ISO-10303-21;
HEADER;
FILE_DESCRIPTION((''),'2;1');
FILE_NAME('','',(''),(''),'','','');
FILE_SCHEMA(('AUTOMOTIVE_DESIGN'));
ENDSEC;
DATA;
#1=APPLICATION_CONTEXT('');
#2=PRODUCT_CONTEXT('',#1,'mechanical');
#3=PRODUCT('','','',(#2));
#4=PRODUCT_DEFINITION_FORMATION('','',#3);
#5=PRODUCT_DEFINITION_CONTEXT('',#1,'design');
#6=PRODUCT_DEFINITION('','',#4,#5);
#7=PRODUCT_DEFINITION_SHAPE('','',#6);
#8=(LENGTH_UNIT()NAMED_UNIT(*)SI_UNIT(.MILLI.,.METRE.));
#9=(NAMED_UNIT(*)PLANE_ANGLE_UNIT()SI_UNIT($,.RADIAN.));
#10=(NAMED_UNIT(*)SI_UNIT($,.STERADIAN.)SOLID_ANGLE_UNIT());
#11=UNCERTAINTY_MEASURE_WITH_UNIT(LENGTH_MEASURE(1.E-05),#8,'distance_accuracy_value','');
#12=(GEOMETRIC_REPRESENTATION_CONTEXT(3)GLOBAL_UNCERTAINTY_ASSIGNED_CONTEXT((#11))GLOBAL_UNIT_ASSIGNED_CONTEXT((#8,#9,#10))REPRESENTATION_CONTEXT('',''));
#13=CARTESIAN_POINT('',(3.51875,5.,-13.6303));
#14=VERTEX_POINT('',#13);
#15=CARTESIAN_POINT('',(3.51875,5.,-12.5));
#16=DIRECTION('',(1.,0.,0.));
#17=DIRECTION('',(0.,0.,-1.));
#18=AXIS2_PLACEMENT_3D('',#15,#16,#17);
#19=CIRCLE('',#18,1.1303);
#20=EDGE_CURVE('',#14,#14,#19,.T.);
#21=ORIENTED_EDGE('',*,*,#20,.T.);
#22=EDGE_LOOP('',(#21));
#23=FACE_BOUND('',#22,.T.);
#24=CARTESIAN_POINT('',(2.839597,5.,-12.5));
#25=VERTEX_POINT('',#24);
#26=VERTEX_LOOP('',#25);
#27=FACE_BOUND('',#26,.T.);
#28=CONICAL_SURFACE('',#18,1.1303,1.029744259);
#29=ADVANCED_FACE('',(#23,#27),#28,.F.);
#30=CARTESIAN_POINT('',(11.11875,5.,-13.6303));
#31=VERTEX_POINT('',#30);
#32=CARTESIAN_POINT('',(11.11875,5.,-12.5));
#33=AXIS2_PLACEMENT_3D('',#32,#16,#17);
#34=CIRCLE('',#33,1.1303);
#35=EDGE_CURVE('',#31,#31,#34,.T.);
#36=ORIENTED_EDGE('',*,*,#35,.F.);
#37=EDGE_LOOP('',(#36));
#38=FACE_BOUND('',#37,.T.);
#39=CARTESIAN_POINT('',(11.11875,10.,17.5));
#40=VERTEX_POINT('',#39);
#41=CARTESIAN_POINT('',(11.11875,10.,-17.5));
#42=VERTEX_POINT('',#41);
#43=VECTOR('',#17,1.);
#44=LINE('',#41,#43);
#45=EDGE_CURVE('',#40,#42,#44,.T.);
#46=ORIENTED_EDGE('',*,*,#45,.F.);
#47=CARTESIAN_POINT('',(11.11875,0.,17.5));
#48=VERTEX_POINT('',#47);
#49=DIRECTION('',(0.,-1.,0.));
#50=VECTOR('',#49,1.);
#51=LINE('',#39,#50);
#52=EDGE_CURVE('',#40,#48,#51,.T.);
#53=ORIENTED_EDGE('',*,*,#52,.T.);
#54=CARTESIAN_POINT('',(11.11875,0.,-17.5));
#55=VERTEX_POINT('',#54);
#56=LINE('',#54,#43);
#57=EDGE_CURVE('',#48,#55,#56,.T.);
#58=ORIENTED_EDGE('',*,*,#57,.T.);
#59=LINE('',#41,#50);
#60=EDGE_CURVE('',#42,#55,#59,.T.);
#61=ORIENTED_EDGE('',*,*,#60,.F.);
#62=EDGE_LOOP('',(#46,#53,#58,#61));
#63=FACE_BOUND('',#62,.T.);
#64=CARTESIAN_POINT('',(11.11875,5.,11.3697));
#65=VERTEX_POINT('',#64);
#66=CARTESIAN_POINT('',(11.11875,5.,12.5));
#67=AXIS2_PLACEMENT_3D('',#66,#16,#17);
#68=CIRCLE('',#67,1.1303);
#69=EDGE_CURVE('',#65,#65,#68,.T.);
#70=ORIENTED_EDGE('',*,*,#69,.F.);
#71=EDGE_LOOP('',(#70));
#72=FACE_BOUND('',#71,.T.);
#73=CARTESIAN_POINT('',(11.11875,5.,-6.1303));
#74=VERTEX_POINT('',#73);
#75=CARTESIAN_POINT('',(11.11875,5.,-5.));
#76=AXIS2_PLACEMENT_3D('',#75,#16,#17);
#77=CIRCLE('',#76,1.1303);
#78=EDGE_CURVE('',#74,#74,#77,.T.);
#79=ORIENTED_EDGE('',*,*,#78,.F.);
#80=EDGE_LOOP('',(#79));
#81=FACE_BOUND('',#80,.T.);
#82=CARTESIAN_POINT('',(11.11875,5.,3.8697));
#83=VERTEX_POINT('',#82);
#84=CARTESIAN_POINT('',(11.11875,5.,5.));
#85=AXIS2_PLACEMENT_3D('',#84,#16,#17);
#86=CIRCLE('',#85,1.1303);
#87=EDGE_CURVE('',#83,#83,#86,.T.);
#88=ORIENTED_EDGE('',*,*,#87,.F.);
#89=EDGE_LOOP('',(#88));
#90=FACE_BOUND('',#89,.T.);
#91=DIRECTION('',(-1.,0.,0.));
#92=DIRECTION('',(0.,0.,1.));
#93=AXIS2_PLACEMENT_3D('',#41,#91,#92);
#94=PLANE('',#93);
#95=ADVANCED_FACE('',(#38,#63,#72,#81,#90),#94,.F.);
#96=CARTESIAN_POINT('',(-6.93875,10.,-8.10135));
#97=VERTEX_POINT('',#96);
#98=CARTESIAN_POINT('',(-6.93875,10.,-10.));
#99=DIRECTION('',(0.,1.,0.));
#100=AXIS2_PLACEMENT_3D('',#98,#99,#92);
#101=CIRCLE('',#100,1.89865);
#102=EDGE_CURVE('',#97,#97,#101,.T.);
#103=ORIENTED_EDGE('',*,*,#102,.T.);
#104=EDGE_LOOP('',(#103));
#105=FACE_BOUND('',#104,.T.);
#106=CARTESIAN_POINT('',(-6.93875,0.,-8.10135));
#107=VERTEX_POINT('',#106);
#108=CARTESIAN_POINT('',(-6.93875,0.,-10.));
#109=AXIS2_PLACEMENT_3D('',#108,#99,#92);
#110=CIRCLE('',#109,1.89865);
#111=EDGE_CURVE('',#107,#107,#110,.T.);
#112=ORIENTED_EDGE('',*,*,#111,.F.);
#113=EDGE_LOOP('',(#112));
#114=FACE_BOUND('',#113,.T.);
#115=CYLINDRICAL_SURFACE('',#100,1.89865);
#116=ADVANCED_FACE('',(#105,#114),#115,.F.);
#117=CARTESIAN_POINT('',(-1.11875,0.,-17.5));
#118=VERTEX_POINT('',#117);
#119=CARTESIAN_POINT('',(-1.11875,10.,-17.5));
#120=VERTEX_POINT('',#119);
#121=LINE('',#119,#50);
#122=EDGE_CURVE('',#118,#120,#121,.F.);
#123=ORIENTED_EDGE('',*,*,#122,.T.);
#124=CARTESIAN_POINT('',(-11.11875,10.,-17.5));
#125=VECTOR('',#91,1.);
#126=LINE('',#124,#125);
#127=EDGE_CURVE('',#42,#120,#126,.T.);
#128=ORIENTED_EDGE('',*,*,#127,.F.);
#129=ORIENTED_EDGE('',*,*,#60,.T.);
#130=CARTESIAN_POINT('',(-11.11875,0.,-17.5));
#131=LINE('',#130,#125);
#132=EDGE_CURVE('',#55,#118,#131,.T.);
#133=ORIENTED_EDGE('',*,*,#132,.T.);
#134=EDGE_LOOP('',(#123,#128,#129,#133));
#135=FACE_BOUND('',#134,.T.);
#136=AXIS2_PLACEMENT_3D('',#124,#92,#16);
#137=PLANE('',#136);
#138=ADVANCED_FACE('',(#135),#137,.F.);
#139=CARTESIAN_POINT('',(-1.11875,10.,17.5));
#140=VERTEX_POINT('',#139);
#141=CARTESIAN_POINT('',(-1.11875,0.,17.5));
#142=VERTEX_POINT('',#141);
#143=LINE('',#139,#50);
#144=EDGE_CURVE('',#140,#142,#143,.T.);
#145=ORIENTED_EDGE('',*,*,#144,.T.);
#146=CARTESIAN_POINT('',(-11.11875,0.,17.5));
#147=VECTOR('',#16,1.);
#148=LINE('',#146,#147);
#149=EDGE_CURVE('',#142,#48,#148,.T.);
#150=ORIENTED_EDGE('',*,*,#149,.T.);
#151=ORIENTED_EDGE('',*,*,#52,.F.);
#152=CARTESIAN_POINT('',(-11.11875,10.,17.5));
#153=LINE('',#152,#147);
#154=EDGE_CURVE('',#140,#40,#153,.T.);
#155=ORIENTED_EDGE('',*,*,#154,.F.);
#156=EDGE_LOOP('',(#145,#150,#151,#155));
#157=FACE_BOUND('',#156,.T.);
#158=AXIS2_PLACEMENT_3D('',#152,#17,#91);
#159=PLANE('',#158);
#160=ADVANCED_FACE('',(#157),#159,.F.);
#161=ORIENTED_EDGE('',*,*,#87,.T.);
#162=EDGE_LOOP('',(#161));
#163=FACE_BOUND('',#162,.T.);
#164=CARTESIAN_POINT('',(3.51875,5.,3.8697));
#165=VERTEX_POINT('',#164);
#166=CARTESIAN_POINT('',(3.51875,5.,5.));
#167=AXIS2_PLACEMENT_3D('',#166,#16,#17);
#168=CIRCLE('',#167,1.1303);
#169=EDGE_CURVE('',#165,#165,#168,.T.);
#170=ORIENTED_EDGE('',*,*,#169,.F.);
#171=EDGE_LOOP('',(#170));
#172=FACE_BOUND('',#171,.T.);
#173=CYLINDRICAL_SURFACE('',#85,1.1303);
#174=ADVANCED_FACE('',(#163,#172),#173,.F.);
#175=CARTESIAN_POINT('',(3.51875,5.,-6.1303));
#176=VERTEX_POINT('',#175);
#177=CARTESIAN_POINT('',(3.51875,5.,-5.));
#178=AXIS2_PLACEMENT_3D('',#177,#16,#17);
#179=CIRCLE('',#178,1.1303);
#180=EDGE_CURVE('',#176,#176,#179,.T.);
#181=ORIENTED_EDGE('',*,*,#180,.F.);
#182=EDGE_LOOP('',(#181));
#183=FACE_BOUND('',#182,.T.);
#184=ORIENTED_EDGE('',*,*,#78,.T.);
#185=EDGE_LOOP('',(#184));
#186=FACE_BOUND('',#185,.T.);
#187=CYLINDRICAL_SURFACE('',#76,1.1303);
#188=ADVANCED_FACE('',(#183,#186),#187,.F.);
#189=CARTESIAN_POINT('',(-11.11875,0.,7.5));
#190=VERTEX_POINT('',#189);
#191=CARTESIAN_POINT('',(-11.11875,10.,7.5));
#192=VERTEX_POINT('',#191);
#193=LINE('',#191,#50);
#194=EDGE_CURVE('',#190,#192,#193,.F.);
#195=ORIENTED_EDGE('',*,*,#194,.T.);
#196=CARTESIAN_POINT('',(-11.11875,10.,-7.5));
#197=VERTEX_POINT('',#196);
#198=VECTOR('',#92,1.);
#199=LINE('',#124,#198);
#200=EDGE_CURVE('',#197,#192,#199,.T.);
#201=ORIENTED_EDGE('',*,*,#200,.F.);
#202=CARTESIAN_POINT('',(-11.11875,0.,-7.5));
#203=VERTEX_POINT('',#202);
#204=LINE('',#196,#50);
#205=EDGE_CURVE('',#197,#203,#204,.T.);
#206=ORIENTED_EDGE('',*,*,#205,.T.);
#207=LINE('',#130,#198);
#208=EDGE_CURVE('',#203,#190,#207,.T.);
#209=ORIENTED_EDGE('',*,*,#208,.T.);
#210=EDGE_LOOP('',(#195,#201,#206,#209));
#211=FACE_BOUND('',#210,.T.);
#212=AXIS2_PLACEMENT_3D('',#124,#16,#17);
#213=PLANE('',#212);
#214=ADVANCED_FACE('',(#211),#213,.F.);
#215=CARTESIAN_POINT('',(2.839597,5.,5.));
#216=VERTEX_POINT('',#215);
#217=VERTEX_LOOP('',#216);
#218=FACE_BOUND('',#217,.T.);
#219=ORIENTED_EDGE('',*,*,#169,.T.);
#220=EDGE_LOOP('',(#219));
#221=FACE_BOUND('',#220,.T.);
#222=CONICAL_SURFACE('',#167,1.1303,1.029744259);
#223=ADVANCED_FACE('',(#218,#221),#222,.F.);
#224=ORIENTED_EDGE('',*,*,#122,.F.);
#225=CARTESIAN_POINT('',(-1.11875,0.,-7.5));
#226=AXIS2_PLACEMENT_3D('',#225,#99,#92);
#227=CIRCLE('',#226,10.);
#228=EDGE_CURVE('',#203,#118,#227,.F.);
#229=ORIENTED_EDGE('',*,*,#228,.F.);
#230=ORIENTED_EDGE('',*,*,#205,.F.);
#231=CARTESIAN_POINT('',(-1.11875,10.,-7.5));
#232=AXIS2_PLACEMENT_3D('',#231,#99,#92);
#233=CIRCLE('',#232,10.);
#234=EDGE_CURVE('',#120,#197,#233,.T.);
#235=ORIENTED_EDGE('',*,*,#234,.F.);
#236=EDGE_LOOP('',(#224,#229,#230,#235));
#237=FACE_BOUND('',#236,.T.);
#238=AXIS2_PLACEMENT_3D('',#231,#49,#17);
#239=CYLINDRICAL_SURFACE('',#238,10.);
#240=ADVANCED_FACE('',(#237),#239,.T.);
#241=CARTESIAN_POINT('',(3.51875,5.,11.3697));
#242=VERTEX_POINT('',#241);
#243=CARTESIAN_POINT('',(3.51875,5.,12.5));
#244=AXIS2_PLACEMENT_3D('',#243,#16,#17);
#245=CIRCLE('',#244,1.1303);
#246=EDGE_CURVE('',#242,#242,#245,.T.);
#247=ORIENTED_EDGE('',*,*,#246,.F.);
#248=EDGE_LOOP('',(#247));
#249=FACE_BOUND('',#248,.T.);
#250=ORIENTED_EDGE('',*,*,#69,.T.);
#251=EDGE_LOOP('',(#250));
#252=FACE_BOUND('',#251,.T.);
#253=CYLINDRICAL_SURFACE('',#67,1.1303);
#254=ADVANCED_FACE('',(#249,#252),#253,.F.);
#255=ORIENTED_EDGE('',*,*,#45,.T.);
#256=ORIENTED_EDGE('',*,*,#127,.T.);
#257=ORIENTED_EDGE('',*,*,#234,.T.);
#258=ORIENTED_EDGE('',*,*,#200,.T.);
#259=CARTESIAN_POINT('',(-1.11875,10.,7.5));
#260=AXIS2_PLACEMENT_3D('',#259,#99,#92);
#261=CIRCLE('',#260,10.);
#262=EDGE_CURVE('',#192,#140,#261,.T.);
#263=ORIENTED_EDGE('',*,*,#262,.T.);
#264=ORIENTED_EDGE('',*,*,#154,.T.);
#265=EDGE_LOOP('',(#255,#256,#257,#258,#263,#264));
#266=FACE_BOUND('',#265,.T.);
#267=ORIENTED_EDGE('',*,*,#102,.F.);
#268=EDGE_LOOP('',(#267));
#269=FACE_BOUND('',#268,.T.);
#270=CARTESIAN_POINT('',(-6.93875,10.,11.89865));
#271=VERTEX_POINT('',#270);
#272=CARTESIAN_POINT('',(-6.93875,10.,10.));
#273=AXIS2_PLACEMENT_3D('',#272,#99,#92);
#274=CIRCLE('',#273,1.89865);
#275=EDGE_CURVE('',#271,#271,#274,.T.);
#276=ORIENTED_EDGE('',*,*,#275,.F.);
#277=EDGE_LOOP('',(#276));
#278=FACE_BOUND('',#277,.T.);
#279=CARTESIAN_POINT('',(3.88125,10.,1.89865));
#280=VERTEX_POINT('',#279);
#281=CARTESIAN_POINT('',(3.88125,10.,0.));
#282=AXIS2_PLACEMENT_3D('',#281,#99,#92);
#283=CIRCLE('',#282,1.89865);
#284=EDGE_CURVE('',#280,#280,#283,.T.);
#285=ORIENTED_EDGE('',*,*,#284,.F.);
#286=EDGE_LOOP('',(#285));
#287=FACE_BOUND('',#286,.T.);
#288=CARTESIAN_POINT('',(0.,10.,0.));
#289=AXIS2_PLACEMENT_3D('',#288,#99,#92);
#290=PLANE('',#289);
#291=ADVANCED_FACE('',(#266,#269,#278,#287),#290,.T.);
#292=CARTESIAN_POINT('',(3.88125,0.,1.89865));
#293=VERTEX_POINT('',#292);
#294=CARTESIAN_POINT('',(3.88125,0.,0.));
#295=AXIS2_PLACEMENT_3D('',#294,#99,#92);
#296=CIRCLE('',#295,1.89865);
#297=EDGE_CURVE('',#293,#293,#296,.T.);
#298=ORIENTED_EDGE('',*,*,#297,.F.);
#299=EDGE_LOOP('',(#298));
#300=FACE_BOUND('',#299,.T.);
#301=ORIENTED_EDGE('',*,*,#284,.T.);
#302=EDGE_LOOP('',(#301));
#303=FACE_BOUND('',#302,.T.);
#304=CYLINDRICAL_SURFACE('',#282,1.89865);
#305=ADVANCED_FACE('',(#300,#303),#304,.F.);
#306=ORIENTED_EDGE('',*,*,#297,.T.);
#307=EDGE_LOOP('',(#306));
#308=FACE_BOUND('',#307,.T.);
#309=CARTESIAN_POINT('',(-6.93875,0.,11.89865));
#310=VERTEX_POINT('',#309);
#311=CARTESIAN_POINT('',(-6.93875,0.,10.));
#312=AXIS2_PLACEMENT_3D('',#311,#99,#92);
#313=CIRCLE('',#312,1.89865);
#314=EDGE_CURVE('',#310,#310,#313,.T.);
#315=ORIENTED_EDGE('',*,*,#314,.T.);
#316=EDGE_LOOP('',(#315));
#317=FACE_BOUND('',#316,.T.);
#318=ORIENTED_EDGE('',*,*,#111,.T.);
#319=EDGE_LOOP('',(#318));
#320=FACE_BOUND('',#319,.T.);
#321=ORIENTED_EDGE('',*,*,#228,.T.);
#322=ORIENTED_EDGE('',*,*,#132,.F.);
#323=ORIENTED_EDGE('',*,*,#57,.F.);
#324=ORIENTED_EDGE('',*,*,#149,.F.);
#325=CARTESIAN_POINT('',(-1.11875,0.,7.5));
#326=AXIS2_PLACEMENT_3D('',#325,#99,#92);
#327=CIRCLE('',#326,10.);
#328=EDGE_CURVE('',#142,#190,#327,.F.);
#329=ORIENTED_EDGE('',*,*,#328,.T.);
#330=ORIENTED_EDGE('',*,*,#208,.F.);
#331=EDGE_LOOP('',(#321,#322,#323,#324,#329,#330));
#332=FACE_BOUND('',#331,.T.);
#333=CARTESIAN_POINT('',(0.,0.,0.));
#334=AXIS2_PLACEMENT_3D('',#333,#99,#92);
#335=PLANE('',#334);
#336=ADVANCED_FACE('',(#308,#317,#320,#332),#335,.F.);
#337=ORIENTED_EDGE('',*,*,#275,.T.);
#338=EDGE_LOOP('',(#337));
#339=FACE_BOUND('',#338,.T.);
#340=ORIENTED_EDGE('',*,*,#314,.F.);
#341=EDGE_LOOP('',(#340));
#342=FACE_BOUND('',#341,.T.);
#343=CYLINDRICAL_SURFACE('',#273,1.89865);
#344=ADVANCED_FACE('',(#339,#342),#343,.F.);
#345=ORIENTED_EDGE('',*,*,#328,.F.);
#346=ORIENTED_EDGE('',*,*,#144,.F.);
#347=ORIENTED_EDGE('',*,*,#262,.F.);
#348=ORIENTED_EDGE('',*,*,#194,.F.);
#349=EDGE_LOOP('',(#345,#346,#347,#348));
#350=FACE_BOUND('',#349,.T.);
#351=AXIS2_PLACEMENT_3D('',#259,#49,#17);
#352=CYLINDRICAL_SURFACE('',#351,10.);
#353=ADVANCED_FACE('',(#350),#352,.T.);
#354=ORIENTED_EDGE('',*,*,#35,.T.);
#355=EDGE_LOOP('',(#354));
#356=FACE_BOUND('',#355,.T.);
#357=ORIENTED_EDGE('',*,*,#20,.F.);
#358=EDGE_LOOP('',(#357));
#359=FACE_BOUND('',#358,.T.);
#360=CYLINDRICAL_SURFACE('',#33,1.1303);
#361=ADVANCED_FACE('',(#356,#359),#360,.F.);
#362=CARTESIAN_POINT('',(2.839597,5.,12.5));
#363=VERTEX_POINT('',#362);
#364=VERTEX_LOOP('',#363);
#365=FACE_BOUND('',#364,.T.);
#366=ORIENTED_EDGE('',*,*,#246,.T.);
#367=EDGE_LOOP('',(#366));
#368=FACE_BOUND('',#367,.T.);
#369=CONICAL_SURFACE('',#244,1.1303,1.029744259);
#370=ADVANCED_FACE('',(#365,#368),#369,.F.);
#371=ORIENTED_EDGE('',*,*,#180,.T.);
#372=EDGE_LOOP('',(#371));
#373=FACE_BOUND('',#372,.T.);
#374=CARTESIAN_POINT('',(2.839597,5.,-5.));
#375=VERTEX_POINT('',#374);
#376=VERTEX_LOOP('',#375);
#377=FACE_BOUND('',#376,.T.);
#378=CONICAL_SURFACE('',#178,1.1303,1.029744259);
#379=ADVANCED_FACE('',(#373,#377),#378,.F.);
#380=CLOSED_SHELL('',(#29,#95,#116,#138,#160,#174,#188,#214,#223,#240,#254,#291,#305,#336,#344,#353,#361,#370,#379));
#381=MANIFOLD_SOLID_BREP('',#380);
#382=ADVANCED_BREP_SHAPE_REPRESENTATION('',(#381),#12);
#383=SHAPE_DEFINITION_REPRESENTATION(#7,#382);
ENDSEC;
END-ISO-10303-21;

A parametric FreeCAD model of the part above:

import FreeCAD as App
import Part
import Sketcher
Q = App.Units.Quantity


def edges_at(feature, points):
    """Names of the edges that pass closest to the given points."""
    edges = feature.Shape.Edges
    near = lambda p: min(range(len(edges)), key=lambda i: edges[i].distToShape(Part.Vertex(*p))[0])
    return sorted({f"Edge{near(p) + 1}" for p in points})


def add_polygon(sketch, points):
    """Adds a closed chain of lines whose ends are joined by coincident constraints."""
    first, n = sketch.GeometryCount, len(points)
    for a, b in zip(points, points[1:] + points[:1]):
        sketch.addGeometry(Part.LineSegment(App.Vector(*a, 0), App.Vector(*b, 0)), False)
    for i in range(n):
        sketch.addConstraint(Sketcher.Constraint("Coincident", first + i, 2, first + (i + 1) % n, 1))

doc = App.newDocument("Part")
body = doc.addObject("PartDesign::Body", "Body")

# Sketch on XZ plane
sketch1 = doc.addObject("Sketcher::SketchObject", "Sketch")
body.addObject(sketch1)
sketch1.AttachmentSupport = (doc.XZ_Plane, [""])
sketch1.MapMode = "FlatFace"
add_polygon(sketch1, [(-11, -18), (-11, 18), (11, 18), (11, -18)])  # lines 0-3
sketch1.addConstraint(Sketcher.Constraint("Vertical", 0))
sketch1.addConstraint(Sketcher.Constraint("Horizontal", 1))
sketch1.addConstraint(Sketcher.Constraint("Vertical", 2))
sketch1.addConstraint(Sketcher.Constraint("Horizontal", 3))
sketch1.addConstraint(Sketcher.Constraint("Symmetric", 0, 2, 2, 2, -1, 1))
sketch1.addConstraint(Sketcher.Constraint("DistanceY", 0, 1, 0, 2, Q("35 mm")))
sketch1.addConstraint(Sketcher.Constraint("DistanceX", 1, 1, 1, 2, Q("22.2375 mm")))
pad1 = doc.addObject("PartDesign::Pad", "Pad")
body.addObject(pad1)
pad1.Profile = sketch1
pad1.Length = 10
pad1.Reversed = True

# Sketch on YZ plane
sketch2 = doc.addObject("Sketcher::SketchObject", "Sketch001")
body.addObject(sketch2)
sketch2.AttachmentSupport = (doc.YZ_Plane, [""])
sketch2.MapMode = "FlatFace"
sketch2.AttachmentOffset = App.Placement(App.Vector(0, 0, 11.11875), App.Rotation())
sketch2.addGeometry(Part.Circle(App.Vector(5, 12.5, 0), App.Vector(0, 0, 1), 1.1), False)
sketch2.addGeometry(Part.Circle(App.Vector(5, -12.5, 0), App.Vector(0, 0, 1), 1.1), False)
sketch2.addGeometry(Part.Circle(App.Vector(5, 5, 0), App.Vector(0, 0, 1), 1.1), False)
sketch2.addGeometry(Part.Circle(App.Vector(5, -5, 0), App.Vector(0, 0, 1), 1.1), False)
sketch2.addConstraint(Sketcher.Constraint("Equal", 0, 1))
sketch2.addConstraint(Sketcher.Constraint("Equal", 1, 2))
sketch2.addConstraint(Sketcher.Constraint("Equal", 2, 3))
sketch2.addConstraint(Sketcher.Constraint("Symmetric", 0, 3, 1, 3, -1))
sketch2.addConstraint(Sketcher.Constraint("Symmetric", 2, 3, 3, 3, -1))
sketch2.addConstraint(Sketcher.Constraint("Vertical", 1, 3, 2, 3))
sketch2.addConstraint(Sketcher.Constraint("DistanceX", -1, 1, 0, 3, Q("5 mm")))
sketch2.addConstraint(Sketcher.Constraint("DistanceY", -1, 1, 2, 3, Q("5 mm")))
sketch2.addConstraint(Sketcher.Constraint("DistanceY", 1, 3, 0, 3, Q("25 mm")))
sketch2.addConstraint(Sketcher.Constraint("Diameter", 0, Q("2.2606 mm")))
doc.recompute()
hole = doc.addObject("PartDesign::Hole", "Hole")
body.addObject(hole)
hole.Profile = sketch2
hole.ThreadType = "None"
hole.Diameter = 2.2606
hole.DepthType = "Dimension"
hole.Depth = 7.6
hole.DrillPoint = "Angled"
hole.DrillPointAngle = 118

# Sketch on XZ plane
sketch3 = doc.addObject("Sketcher::SketchObject", "Sketch002")
body.addObject(sketch3)
sketch3.AttachmentSupport = (doc.XZ_Plane, [""])
sketch3.MapMode = "FlatFace"
sketch3.AttachmentOffset = App.Placement(App.Vector(0, 0, -10), App.Rotation())
sketch3.addGeometry(Part.Circle(App.Vector(3.9, 0, 0), App.Vector(0, 0, 1), 1.9), False)
sketch3.addGeometry(Part.Circle(App.Vector(-6.9, -10, 0), App.Vector(0, 0, 1), 1.9), False)
sketch3.addGeometry(Part.Circle(App.Vector(-6.9, 10, 0), App.Vector(0, 0, 1), 1.9), False)
sketch3.addConstraint(Sketcher.Constraint("Equal", 0, 1))
sketch3.addConstraint(Sketcher.Constraint("Equal", 1, 2))
sketch3.addConstraint(Sketcher.Constraint("Symmetric", 1, 3, 2, 3, -1))
sketch3.addConstraint(Sketcher.Constraint("PointOnObject", 0, 3, -1))
sketch3.addConstraint(Sketcher.Constraint("DistanceY", 1, 3, -1, 1, Q("10 mm")))
sketch3.addConstraint(Sketcher.Constraint("Diameter", 0, Q("3.7973 mm")))
sketch3.addConstraint(Sketcher.Constraint("DistanceX", 1, 3, 0, 3, Q("10.82 mm")))
sketch3.addConstraint(Sketcher.Constraint("DistanceX", -1, 1, 0, 3, Q("3.88125 mm")))
doc.recompute()
hole2 = doc.addObject("PartDesign::Hole", "Hole001")
body.addObject(hole2)
hole2.Profile = sketch3
hole2.ThreadType = "None"
hole2.Diameter = 3.7973
hole2.DepthType = "ThroughAll"
hole2.Reversed = True
doc.recompute()

fillet = doc.addObject("PartDesign::Fillet", "Fillet")
body.addObject(fillet)
fillet.Base = (hole2, edges_at(hole2, [(-11.119, 5, 17.5), (-11.119, 5, -17.5)]))
fillet.Radius = 10

doc.recompute()
